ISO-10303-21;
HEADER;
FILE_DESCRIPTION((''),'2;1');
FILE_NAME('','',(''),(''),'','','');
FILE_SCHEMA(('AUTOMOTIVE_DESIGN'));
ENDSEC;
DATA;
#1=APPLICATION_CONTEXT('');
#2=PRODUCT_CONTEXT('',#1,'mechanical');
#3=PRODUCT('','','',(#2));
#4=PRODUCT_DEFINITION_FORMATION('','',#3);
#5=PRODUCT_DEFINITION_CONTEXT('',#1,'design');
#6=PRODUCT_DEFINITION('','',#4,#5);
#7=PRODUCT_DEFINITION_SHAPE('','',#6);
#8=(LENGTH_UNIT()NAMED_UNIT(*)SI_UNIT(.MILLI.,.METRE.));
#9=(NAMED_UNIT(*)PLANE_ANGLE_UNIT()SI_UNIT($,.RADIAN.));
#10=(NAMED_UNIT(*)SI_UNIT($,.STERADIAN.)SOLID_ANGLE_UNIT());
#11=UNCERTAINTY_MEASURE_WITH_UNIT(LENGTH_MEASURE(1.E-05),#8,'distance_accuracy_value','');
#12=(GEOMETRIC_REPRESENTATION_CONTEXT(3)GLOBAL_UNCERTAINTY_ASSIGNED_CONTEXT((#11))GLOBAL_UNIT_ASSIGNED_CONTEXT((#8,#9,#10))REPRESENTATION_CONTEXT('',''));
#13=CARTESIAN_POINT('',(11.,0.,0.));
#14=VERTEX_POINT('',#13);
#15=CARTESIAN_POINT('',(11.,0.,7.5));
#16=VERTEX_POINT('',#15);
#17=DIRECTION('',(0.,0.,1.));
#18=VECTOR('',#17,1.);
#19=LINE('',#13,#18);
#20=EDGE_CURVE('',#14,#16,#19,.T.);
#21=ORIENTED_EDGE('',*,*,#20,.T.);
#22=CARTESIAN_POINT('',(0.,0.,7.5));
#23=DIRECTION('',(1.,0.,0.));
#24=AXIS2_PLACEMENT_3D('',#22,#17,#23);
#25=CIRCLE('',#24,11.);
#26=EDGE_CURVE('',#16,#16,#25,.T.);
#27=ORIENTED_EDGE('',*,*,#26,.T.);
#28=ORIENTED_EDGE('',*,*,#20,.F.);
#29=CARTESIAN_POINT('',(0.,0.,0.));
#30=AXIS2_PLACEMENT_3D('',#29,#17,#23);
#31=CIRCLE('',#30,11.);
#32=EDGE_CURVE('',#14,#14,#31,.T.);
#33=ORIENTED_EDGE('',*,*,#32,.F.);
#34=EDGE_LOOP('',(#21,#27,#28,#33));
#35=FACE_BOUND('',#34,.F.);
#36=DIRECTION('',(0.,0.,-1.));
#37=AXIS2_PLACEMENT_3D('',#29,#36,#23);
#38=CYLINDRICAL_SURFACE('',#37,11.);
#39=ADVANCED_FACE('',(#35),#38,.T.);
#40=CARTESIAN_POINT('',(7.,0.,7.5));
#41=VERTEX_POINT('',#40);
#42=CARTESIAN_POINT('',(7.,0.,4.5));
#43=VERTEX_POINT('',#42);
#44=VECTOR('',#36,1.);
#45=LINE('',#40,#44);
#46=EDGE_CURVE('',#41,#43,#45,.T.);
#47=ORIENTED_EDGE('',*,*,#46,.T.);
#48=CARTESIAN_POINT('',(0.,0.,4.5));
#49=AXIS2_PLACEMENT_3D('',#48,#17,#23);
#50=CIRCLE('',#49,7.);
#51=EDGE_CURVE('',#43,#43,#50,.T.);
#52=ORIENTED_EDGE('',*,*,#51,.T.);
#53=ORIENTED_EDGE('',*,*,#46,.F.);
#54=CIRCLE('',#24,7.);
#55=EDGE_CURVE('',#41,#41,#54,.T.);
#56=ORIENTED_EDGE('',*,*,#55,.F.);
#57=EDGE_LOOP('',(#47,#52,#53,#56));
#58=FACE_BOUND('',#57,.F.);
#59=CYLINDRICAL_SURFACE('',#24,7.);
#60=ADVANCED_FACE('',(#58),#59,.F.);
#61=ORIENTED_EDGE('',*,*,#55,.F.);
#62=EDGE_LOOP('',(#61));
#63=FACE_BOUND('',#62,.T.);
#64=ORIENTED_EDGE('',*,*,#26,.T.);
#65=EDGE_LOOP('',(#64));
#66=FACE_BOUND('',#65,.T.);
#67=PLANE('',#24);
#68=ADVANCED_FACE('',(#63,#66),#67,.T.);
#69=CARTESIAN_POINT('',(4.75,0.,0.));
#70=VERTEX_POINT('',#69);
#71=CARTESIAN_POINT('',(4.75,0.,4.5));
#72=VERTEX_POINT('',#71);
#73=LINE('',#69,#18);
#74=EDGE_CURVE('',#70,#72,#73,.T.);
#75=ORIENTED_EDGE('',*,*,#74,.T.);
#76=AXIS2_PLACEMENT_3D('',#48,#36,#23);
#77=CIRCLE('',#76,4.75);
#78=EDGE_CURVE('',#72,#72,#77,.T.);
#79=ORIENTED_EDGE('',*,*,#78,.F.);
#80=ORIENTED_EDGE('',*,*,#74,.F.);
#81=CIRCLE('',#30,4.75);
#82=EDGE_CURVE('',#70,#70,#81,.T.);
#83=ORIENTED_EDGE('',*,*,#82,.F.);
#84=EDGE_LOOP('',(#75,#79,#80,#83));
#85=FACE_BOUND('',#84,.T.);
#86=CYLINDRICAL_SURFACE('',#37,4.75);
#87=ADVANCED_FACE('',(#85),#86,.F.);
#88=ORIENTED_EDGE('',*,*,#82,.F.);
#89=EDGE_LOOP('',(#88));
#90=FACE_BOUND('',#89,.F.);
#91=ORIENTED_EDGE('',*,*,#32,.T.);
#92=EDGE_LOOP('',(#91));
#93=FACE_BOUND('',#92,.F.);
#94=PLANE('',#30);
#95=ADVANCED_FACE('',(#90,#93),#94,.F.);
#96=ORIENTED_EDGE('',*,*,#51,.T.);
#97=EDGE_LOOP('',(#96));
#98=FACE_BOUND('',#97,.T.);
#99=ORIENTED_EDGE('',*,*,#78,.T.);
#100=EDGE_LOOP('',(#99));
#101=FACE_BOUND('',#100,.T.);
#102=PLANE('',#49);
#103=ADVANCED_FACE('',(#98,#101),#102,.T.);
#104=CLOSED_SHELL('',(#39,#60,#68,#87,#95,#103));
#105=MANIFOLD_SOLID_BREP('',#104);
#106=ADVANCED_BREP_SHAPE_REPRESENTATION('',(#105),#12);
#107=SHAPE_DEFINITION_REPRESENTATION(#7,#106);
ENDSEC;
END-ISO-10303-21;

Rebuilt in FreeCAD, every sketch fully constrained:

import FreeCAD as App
import Part
import Sketcher

V = App.Vector
Q = App.Units.Quantity

doc = App.newDocument("Part")
body = doc.addObject("PartDesign::Body", "Body")

# Sketch on XY plane
sketch1 = body.newObject("Sketcher::SketchObject", "Sketch")
sketch1.AttachmentSupport = (doc.getObject("XY_Plane"), [""])
sketch1.MapMode = "FlatFace"
sketch1.addGeometry([
    Part.Circle(V(0, 0, 0), V(0, 0, 1), 11),
    Part.Circle(V(0, 0, 0), V(0, 0, 1), 4.8),
], False)
sketch1.addConstraint([
    Sketcher.Constraint("Coincident", 0, 3, -1, 1),
    Sketcher.Constraint("Coincident", 1, 3, -1, 1),
    Sketcher.Constraint("Diameter", 0, Q("22 mm")),
    Sketcher.Constraint("Diameter", 1, Q("9.5 mm")),
])
pad1 = body.newObject("PartDesign::Pad", "Pad")
pad1.Profile = sketch1
pad1.Length = 7.5

# Sketch on XY plane
sketch2 = body.newObject("Sketcher::SketchObject", "Sketch001")
sketch2.AttachmentSupport = (doc.getObject("XY_Plane"), [""])
sketch2.MapMode = "FlatFace"
sketch2.AttachmentOffset = App.Placement(V(0, 0, 7.5), App.Rotation())
sketch2.addGeometry(Part.Circle(V(0, 0, 0), V(0, 0, 1), 7), False)
sketch2.addConstraint([
    Sketcher.Constraint("Coincident", 0, 3, -1, 1),
    Sketcher.Constraint("Diameter", 0, Q("14 mm")),
])
pocket1 = body.newObject("PartDesign::Pocket", "Pocket")
pocket1.Profile = sketch2
pocket1.Length = 3

doc.recompute()
